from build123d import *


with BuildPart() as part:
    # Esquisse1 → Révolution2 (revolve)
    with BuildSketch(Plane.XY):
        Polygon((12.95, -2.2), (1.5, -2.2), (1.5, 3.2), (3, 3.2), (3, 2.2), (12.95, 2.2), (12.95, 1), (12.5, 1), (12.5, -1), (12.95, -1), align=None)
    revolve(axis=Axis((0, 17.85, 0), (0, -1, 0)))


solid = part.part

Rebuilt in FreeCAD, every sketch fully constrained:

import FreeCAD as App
import Part
import Sketcher

V = App.Vector

doc = App.newDocument("Part")
params = doc.addObject("Spreadsheet::Sheet", "Params")
for row, (alias, value) in enumerate([
    ("sketch1_height", "2 mm"),
    ("sketch1_height2", "1 mm"),
    ("sketch1_width", "1.5 mm"),
    ("sketch1_height3", "1.2 mm"),
    ("sketch1_width2", "11.45 mm"),
    ("revolution_angle", "360 deg"),
], start=1):
    params.set(f"A{row}", alias)
    params.set(f"B{row}", "=" + value)
    params.setAlias(f"B{row}", alias)

body = doc.addObject("PartDesign::Body", "Body")

# Sketch on XY plane
sketch1 = body.newObject("Sketcher::SketchObject", "Sketch")
sketch1.AttachmentSupport = (doc.getObject("XY_Plane"), [""])
sketch1.MapMode = "FlatFace"
sketch1.addGeometry([
    Part.LineSegment(V(1.5, -2.2, 0), V(12.95, -2.2, 0)),  # 0
    Part.LineSegment(V(12.95, -2.2, 0), V(12.95, -1, 0)),  # 1
    Part.LineSegment(V(12.95, -1, 0), V(12.5, -1, 0)),  # 2
    Part.LineSegment(V(12.5, -1, 0), V(12.5, 1, 0)),  # 3
    Part.LineSegment(V(12.5, 1, 0), V(12.95, 1, 0)),  # 4
    Part.LineSegment(V(12.95, 1, 0), V(12.95, 2.2, 0)),  # 5
    Part.LineSegment(V(12.95, 2.2, 0), V(3, 2.2, 0)),  # 6
    Part.LineSegment(V(3, 2.2, 0), V(3, 3.2, 0)),  # 7
    Part.LineSegment(V(3, 3.2, 0), V(1.5, 3.2, 0)),  # 8
    Part.LineSegment(V(1.5, 3.2, 0), V(1.5, -2.2, 0)),  # 9
], False)
sketch1.addConstraint([
    Sketcher.Constraint("Coincident", 0, 2, 1, 1),
    Sketcher.Constraint("Coincident", 1, 2, 2, 1),
    Sketcher.Constraint("Coincident", 2, 2, 3, 1),
    Sketcher.Constraint("Coincident", 3, 2, 4, 1),
    Sketcher.Constraint("Coincident", 4, 2, 5, 1),
    Sketcher.Constraint("Coincident", 5, 2, 6, 1),
    Sketcher.Constraint("Coincident", 6, 2, 7, 1),
    Sketcher.Constraint("Coincident", 7, 2, 8, 1),
    Sketcher.Constraint("Coincident", 8, 2, 9, 1),
    Sketcher.Constraint("Coincident", 9, 2, 0, 1),
    Sketcher.Constraint("Horizontal", 0),
    Sketcher.Constraint("Vertical", 1),
    Sketcher.Constraint("Horizontal", 2),
    Sketcher.Constraint("Vertical", 3),
    Sketcher.Constraint("Horizontal", 4),
    Sketcher.Constraint("Vertical", 5),
    Sketcher.Constraint("Horizontal", 6),
    Sketcher.Constraint("Vertical", 7),
    Sketcher.Constraint("Horizontal", 8),
    Sketcher.Constraint("Vertical", 9),
    Sketcher.Constraint("Symmetric", 1, 2, 4, 2, -1),
    Sketcher.Constraint("Equal", 1, 5),
    Sketcher.Constraint("DistanceY", 3, 1, 3, 2, 2.0),
    Sketcher.Constraint("DistanceY", 7, 1, 7, 2, 1.0),
    Sketcher.Constraint("DistanceX", 8, 2, 8, 1, 1.5),
    Sketcher.Constraint("DistanceY", 1, 1, 1, 2, 1.2),
    Sketcher.Constraint("DistanceX", -1, 1, 6, 2, 3.0),
    Sketcher.Constraint("DistanceX", 8, 2, 3, 2, 11.0),
    Sketcher.Constraint("DistanceX", 0, 1, 0, 2, 11.45),
])
sketch1.setExpression("Constraints[22]", "Params.sketch1_height")
sketch1.setExpression("Constraints[23]", "Params.sketch1_height2")
sketch1.setExpression("Constraints[24]", "Params.sketch1_width")
sketch1.setExpression("Constraints[25]", "Params.sketch1_height3")
sketch1.setExpression("Constraints[28]", "Params.sketch1_width2")
revolution = body.newObject("PartDesign::Revolution", "Revolution")
revolution.Profile = sketch1
revolution.ReferenceAxis = (sketch1, ["V_Axis"])
revolution.setExpression("Angle", "Params.revolution_angle")

doc.recompute()
